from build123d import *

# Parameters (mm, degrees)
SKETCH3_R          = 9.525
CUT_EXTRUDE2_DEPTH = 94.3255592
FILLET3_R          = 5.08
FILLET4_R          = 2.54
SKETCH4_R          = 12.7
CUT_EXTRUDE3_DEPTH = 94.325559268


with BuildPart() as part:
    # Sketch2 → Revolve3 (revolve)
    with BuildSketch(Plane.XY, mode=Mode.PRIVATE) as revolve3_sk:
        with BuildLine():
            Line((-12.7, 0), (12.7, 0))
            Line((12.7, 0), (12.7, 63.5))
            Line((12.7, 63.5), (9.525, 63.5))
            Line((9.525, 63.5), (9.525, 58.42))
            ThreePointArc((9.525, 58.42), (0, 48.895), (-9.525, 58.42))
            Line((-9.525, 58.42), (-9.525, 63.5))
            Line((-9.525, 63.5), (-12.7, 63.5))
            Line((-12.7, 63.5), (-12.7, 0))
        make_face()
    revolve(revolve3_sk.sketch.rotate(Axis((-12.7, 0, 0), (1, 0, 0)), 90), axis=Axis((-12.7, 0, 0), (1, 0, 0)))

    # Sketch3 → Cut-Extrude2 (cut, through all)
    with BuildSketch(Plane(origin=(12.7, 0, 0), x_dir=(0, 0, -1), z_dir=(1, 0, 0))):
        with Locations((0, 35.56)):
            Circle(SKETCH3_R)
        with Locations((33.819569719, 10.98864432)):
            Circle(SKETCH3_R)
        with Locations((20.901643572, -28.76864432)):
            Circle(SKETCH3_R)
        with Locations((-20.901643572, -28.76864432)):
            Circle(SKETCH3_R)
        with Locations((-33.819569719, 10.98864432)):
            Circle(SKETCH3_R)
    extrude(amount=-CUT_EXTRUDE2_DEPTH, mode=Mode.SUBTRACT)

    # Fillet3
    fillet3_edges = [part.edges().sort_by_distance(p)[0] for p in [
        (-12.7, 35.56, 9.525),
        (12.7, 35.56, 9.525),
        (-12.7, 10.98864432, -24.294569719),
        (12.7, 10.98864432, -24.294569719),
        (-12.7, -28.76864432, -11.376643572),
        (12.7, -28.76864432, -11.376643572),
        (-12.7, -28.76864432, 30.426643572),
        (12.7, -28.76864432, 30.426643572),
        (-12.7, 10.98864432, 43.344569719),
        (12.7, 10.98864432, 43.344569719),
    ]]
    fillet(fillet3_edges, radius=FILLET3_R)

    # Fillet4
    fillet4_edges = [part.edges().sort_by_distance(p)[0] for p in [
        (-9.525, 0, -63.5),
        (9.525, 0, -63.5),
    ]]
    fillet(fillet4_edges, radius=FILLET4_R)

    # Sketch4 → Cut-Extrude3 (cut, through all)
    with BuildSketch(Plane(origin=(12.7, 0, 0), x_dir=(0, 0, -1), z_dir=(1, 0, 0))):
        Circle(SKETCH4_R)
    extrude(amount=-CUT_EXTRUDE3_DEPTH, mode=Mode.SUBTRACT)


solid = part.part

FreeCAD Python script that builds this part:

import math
import FreeCAD as App
import Part
import Sketcher
from FreeCAD import Vector
Q = App.Units.Quantity


def edges_at(feature, points):
    """Names of the edges that pass closest to the given points."""
    edges = feature.Shape.Edges
    near = lambda p: min(range(len(edges)), key=lambda i: edges[i].distToShape(Part.Vertex(*p))[0])
    return sorted({f"Edge{near(p) + 1}" for p in points})

doc = App.newDocument("Part")
body = doc.addObject("PartDesign::Body", "Body")

sketch1 = doc.addObject("Sketcher::SketchObject", "Sketch")
body.addObject(sketch1)
sketch1.AttachmentSupport = (doc.XY_Plane, [""])
sketch1.MapMode = "FlatFace"
sketch1.addGeometry([
    Part.LineSegment(Vector(-12.7, 0, 0), Vector(12.7, 0, 0)),
    Part.LineSegment(Vector(12.7, 0, 0), Vector(12.7, 63.5, 0)),
    Part.LineSegment(Vector(12.7, 63.5, 0), Vector(9.5, 63.5, 0)),
    Part.LineSegment(Vector(9.5, 63.5, 0), Vector(9.5, 58.4, 0)),
    Part.ArcOfCircle(Part.Circle(Vector(0, 58.4, 0), Vector(0, 0, 1), 9.5), math.radians(180), math.radians(360)),
    Part.LineSegment(Vector(-9.5, 58.4, 0), Vector(-9.5, 63.5, 0)),
    Part.LineSegment(Vector(-9.5, 63.5, 0), Vector(-12.7, 63.5, 0)),
    Part.LineSegment(Vector(-12.7, 63.5, 0), Vector(-12.7, 0, 0)),
], False)
sketch1.addConstraint([
    Sketcher.Constraint("Coincident", 0, 2, 1, 1),
    Sketcher.Constraint("Coincident", 1, 2, 2, 1),
    Sketcher.Constraint("Coincident", 2, 2, 3, 1),
    Sketcher.Constraint("Tangent", 3, 2, 4, 2),
    Sketcher.Constraint("Tangent", 4, 1, 5, 1),
    Sketcher.Constraint("Coincident", 5, 2, 6, 1),
    Sketcher.Constraint("Coincident", 6, 2, 7, 1),
    Sketcher.Constraint("Coincident", 7, 2, 0, 1),
    Sketcher.Constraint("Horizontal", 0),
    Sketcher.Constraint("Vertical", 1),
    Sketcher.Constraint("Horizontal", 2),
    Sketcher.Constraint("Vertical", 3),
    Sketcher.Constraint("Vertical", 5),
    Sketcher.Constraint("Horizontal", 6),
    Sketcher.Constraint("Vertical", 7),
    Sketcher.Constraint("Symmetric", 0, 2, 7, 2, -1, 1),
    Sketcher.Constraint("Symmetric", 2, 2, 5, 2, -2),
    Sketcher.Constraint("DistanceX", 0, 1, 0, 2, Q("1 in")),
    Sketcher.Constraint("DistanceY", 1, 1, 1, 2, Q("2.5 in")),
    Sketcher.Constraint("DistanceY", 3, 2, 3, 1, Q("0.2 in")),
    Sketcher.Constraint("Radius", 4, Q("0.375 in")),
])
revolution = doc.addObject("PartDesign::Revolution", "Revolution")
body.addObject(revolution)
revolution.Profile = sketch1
revolution.ReferenceAxis = (sketch1, ["H_Axis"])
revolution.Angle = 360

sketch2 = doc.addObject("Sketcher::SketchObject", "Sketch001")
body.addObject(sketch2)
sketch2.AttachmentSupport = (doc.YZ_Plane, [""])
sketch2.MapMode = "FlatFace"
sketch2.AttachmentOffset = App.Placement(Vector(0, 0, 0.5 * 25.4), App.Rotation())
sketch2.addGeometry([
    Part.Circle(Vector(36, 0, 0), Vector(0, 0, 1), 10),
    Part.Circle(Vector(11, -34, 0), Vector(0, 0, 1), 10),
    Part.Circle(Vector(-29, -21, 0), Vector(0, 0, 1), 10),
    Part.Circle(Vector(-29, 21, 0), Vector(0, 0, 1), 10),
    Part.Circle(Vector(11, 34, 0), Vector(0, 0, 1), 10),
], False)
sketch2.addConstraint([
    Sketcher.Constraint("Equal", 0, 1),
    Sketcher.Constraint("Equal", 1, 2),
    Sketcher.Constraint("Equal", 2, 3),
    Sketcher.Constraint("Equal", 3, 4),
    Sketcher.Constraint("Symmetric", 2, 3, 3, 3, -1),
    Sketcher.Constraint("Symmetric", 1, 3, 4, 3, -1),
    Sketcher.Constraint("PointOnObject", 0, 3, -1),
    Sketcher.Constraint("Diameter", 0, Q("0.75 in")),
    Sketcher.Constraint("DistanceX", -1, 1, 0, 3, Q("1.4 in")),
    Sketcher.Constraint("DistanceY", 1, 3, -1, 1, 33.81957),
    Sketcher.Constraint("DistanceX", 2, 3, 1, 3, 39.757289),
    Sketcher.Constraint("DistanceX", -1, 1, 1, 3, 10.988644),
    Sketcher.Constraint("DistanceY", 2, 3, -1, 1, 20.901644),
])
pocket1 = doc.addObject("PartDesign::Pocket", "Pocket")
body.addObject(pocket1)
pocket1.Profile = sketch2
pocket1.Type = "ThroughAll"
doc.recompute()

fillet = doc.addObject("PartDesign::Fillet", "Fillet")
body.addObject(fillet)
fillet.Base = (pocket1, edges_at(pocket1, [
    (-12.7, 35.56, 9.525),
    (12.7, 35.56, 9.525),
    (-12.7, 10.989, -24.295),
    (12.7, 10.989, -24.295),
    (-12.7, -28.769, -11.377),
    (12.7, -28.769, -11.377),
    (-12.7, -28.769, 30.427),
    (12.7, -28.769, 30.427),
    (-12.7, 10.989, 43.345),
    (12.7, 10.989, 43.345),
]))
fillet.Radius = Q("0.2 in")
doc.recompute()

fillet2 = doc.addObject("PartDesign::Fillet", "Fillet001")
body.addObject(fillet2)
fillet2.Base = (fillet, edges_at(fillet, [(-9.525, 0, -63.5), (9.525, 0, -63.5)]))
fillet2.Radius = Q("0.1 in")

sketch3 = doc.addObject("Sketcher::SketchObject", "Sketch002")
body.addObject(sketch3)
sketch3.AttachmentSupport = (doc.YZ_Plane, [""])
sketch3.MapMode = "FlatFace"
sketch3.AttachmentOffset = App.Placement(Vector(0, 0, 0.5 * 25.4), App.Rotation())
sketch3.addGeometry(Part.Circle(Vector(0, 0, 0), Vector(0, 0, 1), 13), False)
sketch3.addConstraint([
    Sketcher.Constraint("Coincident", 0, 3, -1, 1),
    Sketcher.Constraint("Diameter", 0, Q("1 in")),
])
pocket2 = doc.addObject("PartDesign::Pocket", "Pocket001")
body.addObject(pocket2)
pocket2.Profile = sketch3
pocket2.Type = "ThroughAll"

doc.recompute()
